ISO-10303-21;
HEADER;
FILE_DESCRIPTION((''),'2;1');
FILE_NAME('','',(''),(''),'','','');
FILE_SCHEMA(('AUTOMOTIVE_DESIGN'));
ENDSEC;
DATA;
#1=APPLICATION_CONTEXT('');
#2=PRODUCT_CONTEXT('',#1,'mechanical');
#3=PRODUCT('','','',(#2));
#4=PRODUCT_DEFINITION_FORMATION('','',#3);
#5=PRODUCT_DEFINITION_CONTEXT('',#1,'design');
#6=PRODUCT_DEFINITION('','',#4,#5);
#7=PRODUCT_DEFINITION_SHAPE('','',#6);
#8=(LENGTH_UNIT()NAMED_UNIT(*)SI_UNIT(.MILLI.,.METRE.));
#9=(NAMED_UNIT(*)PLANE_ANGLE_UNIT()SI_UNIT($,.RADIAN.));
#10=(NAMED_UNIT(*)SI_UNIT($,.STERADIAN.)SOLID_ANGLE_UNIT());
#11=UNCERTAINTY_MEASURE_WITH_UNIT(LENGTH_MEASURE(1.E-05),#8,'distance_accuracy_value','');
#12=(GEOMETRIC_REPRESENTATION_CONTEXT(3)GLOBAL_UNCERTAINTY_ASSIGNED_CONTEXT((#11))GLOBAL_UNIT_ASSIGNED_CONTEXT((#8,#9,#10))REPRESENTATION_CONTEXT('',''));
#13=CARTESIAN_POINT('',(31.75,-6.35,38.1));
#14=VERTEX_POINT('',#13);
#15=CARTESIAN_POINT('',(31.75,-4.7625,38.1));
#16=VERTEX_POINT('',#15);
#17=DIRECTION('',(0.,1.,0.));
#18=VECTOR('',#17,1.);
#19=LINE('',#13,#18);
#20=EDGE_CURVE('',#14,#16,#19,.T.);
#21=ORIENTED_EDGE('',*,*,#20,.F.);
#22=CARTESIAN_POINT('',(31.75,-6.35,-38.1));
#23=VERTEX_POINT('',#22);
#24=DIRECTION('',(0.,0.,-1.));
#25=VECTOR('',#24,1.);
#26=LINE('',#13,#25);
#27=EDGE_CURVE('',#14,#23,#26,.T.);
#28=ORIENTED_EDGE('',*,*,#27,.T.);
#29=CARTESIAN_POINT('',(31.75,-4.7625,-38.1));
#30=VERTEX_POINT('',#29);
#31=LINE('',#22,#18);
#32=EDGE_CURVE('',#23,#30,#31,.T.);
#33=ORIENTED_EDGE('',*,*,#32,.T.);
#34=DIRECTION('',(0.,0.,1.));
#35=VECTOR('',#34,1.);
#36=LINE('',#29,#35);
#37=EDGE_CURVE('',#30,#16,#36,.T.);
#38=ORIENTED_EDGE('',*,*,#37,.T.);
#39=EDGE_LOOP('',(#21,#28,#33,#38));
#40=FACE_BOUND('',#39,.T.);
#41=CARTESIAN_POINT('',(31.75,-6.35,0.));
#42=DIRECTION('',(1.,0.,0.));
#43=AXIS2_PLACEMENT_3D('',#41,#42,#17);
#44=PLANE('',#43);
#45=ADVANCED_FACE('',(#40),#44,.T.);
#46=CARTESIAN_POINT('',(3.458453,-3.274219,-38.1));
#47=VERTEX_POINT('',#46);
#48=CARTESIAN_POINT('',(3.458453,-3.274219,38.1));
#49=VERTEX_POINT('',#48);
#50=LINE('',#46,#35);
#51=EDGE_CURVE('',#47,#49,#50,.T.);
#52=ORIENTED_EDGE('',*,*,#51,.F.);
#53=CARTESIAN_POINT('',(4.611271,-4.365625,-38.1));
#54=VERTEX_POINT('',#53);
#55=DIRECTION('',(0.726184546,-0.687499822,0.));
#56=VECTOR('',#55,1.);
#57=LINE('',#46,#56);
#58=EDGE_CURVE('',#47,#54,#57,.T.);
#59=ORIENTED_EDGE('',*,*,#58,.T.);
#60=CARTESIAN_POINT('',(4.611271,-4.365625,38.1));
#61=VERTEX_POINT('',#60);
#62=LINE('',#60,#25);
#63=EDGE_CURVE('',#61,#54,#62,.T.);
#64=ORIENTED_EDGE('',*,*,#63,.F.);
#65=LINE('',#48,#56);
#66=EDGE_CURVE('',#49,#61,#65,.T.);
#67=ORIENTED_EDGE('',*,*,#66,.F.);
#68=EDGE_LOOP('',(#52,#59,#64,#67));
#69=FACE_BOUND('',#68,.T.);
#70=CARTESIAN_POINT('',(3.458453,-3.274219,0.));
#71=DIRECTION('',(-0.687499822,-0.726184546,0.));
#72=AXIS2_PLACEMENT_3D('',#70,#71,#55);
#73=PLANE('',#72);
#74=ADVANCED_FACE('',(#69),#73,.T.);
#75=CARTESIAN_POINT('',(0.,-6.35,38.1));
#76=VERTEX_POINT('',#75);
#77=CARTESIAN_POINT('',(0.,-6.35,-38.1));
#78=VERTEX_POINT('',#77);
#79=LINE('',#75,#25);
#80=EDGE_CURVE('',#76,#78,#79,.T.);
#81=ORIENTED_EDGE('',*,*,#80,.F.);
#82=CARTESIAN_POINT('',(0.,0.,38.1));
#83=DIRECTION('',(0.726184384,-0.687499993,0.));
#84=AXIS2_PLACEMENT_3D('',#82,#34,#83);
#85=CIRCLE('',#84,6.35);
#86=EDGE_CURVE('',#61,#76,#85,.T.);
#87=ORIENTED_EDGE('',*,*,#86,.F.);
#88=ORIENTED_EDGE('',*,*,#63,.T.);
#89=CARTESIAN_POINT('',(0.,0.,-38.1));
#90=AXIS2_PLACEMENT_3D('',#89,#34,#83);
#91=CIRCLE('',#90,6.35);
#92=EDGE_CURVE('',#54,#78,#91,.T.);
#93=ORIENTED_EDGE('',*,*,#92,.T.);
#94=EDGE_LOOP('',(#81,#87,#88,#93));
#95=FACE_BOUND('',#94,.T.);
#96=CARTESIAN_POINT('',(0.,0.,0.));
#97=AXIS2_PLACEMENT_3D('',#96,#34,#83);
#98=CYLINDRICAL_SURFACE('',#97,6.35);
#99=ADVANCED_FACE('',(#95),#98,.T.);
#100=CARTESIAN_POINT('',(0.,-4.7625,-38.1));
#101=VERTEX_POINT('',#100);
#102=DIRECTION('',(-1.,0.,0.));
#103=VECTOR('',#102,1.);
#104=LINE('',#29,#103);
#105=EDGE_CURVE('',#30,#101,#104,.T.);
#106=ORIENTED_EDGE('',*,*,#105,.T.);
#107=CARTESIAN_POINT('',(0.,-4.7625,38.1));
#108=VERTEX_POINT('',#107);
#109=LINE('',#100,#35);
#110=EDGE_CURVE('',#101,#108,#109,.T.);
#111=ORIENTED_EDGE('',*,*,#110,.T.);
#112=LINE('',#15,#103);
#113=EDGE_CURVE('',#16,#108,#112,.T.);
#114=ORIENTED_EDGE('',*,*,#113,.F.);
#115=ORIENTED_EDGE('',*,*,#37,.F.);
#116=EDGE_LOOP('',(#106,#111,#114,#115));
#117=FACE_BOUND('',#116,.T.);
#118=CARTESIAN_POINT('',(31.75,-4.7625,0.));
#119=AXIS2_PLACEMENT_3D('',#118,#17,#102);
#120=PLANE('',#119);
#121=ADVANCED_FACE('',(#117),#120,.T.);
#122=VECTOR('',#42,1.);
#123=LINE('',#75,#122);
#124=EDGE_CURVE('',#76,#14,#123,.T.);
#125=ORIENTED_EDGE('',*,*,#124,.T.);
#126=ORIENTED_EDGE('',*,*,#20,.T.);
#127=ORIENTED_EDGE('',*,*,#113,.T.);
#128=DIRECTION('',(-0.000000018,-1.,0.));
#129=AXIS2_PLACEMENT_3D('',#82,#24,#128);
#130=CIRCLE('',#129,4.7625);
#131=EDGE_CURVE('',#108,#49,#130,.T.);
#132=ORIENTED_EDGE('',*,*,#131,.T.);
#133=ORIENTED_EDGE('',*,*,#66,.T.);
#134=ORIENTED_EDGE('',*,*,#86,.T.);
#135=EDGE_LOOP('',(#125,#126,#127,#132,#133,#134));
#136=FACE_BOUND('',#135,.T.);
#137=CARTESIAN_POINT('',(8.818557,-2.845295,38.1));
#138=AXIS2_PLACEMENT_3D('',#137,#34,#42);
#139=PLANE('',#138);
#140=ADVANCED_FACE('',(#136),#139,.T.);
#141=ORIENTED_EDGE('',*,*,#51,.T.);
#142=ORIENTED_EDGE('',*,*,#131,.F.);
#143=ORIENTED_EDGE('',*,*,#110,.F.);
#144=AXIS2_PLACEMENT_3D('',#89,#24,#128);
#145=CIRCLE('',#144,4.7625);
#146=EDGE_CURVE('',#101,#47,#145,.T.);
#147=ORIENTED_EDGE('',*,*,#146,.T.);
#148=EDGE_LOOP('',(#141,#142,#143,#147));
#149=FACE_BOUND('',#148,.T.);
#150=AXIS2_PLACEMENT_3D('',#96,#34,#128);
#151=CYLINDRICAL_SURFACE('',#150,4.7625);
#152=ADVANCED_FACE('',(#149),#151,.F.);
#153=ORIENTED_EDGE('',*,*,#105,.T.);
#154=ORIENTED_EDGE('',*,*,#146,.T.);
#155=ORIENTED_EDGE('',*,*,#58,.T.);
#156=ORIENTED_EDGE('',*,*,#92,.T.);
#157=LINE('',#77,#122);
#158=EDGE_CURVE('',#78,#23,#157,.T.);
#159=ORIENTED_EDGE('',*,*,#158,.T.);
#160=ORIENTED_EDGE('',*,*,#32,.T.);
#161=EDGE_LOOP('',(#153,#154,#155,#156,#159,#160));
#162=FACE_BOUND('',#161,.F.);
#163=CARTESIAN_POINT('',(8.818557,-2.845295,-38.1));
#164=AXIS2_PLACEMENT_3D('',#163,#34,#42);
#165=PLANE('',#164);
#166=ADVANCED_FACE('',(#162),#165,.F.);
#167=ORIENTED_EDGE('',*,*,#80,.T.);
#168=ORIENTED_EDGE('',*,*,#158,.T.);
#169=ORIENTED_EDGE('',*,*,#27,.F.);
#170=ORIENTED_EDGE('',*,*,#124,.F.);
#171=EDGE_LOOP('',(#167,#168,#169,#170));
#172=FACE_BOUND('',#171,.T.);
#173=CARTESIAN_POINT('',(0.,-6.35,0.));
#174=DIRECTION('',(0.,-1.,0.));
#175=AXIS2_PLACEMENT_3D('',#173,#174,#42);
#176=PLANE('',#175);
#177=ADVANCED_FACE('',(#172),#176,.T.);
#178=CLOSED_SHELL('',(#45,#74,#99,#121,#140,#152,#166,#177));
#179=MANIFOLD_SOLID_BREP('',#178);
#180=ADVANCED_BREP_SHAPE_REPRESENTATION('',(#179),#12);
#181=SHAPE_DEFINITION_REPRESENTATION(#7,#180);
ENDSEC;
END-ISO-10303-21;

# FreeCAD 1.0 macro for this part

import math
import FreeCAD as App
import Part
import Sketcher

V = App.Vector
Q = App.Units.Quantity

doc = App.newDocument("Part")
body = doc.addObject("PartDesign::Body", "Body")

sketch1 = body.newObject("Sketcher::SketchObject", "Sketch")
sketch1.AttachmentSupport = (doc.getObject("XY_Plane"), [""])
sketch1.MapMode = "FlatFace"
sketch1.addGeometry([
    Part.LineSegment(V(31.8, -6.3, 0), V(31.8, -4.8, 0)),
    Part.LineSegment(V(31.8, -4.8, 0), V(0, -4.8, 0)),
    Part.ArcOfCircle(Part.Circle(V(0, 0, 0), V(0, 0, 1), 4.8), math.radians(-43), math.radians(270)),
    Part.LineSegment(V(3.5, -3.3, 0), V(4.6, -4.4, 0)),
    Part.ArcOfCircle(Part.Circle(V(0, 0, 0), V(0, 0, 1), 6.3), math.radians(-43), math.radians(270)),
    Part.LineSegment(V(0, -6.3, 0), V(31.8, -6.3, 0)),
], False)
sketch1.addConstraint([
    Sketcher.Constraint("Coincident", 0, 2, 1, 1),
    Sketcher.Constraint("Tangent", 1, 2, 2, 2),
    Sketcher.Constraint("Coincident", 2, 1, 3, 1),
    Sketcher.Constraint("Coincident", 3, 2, 4, 1),
    Sketcher.Constraint("Tangent", 4, 2, 5, 1),
    Sketcher.Constraint("Coincident", 5, 2, 0, 1),
    Sketcher.Constraint("Vertical", 0),
    Sketcher.Constraint("Horizontal", 1),
    Sketcher.Constraint("Horizontal", 5),
    Sketcher.Constraint("Coincident", 2, 3, -1, 1),
    Sketcher.Constraint("Coincident", 4, 3, -1, 1),
    Sketcher.Constraint("Radius", 4, Q("0.25 in")),
    Sketcher.Constraint("Radius", 2, Q("0.1875 in")),
    Sketcher.Constraint("DistanceX", 1, 2, 1, 1, Q("1.25 in")),
    Sketcher.Constraint("DistanceY", 3, 2, -1, 1, Q("0.171875 in")),
    Sketcher.Constraint("DistanceY", 2, 1, -1, 1, 3.274219),
])
pad1 = body.newObject("PartDesign::Pad", "Pad")
pad1.Profile = sketch1
pad1.Length = Q("3 in")
pad1.Midplane = True

doc.recompute()
